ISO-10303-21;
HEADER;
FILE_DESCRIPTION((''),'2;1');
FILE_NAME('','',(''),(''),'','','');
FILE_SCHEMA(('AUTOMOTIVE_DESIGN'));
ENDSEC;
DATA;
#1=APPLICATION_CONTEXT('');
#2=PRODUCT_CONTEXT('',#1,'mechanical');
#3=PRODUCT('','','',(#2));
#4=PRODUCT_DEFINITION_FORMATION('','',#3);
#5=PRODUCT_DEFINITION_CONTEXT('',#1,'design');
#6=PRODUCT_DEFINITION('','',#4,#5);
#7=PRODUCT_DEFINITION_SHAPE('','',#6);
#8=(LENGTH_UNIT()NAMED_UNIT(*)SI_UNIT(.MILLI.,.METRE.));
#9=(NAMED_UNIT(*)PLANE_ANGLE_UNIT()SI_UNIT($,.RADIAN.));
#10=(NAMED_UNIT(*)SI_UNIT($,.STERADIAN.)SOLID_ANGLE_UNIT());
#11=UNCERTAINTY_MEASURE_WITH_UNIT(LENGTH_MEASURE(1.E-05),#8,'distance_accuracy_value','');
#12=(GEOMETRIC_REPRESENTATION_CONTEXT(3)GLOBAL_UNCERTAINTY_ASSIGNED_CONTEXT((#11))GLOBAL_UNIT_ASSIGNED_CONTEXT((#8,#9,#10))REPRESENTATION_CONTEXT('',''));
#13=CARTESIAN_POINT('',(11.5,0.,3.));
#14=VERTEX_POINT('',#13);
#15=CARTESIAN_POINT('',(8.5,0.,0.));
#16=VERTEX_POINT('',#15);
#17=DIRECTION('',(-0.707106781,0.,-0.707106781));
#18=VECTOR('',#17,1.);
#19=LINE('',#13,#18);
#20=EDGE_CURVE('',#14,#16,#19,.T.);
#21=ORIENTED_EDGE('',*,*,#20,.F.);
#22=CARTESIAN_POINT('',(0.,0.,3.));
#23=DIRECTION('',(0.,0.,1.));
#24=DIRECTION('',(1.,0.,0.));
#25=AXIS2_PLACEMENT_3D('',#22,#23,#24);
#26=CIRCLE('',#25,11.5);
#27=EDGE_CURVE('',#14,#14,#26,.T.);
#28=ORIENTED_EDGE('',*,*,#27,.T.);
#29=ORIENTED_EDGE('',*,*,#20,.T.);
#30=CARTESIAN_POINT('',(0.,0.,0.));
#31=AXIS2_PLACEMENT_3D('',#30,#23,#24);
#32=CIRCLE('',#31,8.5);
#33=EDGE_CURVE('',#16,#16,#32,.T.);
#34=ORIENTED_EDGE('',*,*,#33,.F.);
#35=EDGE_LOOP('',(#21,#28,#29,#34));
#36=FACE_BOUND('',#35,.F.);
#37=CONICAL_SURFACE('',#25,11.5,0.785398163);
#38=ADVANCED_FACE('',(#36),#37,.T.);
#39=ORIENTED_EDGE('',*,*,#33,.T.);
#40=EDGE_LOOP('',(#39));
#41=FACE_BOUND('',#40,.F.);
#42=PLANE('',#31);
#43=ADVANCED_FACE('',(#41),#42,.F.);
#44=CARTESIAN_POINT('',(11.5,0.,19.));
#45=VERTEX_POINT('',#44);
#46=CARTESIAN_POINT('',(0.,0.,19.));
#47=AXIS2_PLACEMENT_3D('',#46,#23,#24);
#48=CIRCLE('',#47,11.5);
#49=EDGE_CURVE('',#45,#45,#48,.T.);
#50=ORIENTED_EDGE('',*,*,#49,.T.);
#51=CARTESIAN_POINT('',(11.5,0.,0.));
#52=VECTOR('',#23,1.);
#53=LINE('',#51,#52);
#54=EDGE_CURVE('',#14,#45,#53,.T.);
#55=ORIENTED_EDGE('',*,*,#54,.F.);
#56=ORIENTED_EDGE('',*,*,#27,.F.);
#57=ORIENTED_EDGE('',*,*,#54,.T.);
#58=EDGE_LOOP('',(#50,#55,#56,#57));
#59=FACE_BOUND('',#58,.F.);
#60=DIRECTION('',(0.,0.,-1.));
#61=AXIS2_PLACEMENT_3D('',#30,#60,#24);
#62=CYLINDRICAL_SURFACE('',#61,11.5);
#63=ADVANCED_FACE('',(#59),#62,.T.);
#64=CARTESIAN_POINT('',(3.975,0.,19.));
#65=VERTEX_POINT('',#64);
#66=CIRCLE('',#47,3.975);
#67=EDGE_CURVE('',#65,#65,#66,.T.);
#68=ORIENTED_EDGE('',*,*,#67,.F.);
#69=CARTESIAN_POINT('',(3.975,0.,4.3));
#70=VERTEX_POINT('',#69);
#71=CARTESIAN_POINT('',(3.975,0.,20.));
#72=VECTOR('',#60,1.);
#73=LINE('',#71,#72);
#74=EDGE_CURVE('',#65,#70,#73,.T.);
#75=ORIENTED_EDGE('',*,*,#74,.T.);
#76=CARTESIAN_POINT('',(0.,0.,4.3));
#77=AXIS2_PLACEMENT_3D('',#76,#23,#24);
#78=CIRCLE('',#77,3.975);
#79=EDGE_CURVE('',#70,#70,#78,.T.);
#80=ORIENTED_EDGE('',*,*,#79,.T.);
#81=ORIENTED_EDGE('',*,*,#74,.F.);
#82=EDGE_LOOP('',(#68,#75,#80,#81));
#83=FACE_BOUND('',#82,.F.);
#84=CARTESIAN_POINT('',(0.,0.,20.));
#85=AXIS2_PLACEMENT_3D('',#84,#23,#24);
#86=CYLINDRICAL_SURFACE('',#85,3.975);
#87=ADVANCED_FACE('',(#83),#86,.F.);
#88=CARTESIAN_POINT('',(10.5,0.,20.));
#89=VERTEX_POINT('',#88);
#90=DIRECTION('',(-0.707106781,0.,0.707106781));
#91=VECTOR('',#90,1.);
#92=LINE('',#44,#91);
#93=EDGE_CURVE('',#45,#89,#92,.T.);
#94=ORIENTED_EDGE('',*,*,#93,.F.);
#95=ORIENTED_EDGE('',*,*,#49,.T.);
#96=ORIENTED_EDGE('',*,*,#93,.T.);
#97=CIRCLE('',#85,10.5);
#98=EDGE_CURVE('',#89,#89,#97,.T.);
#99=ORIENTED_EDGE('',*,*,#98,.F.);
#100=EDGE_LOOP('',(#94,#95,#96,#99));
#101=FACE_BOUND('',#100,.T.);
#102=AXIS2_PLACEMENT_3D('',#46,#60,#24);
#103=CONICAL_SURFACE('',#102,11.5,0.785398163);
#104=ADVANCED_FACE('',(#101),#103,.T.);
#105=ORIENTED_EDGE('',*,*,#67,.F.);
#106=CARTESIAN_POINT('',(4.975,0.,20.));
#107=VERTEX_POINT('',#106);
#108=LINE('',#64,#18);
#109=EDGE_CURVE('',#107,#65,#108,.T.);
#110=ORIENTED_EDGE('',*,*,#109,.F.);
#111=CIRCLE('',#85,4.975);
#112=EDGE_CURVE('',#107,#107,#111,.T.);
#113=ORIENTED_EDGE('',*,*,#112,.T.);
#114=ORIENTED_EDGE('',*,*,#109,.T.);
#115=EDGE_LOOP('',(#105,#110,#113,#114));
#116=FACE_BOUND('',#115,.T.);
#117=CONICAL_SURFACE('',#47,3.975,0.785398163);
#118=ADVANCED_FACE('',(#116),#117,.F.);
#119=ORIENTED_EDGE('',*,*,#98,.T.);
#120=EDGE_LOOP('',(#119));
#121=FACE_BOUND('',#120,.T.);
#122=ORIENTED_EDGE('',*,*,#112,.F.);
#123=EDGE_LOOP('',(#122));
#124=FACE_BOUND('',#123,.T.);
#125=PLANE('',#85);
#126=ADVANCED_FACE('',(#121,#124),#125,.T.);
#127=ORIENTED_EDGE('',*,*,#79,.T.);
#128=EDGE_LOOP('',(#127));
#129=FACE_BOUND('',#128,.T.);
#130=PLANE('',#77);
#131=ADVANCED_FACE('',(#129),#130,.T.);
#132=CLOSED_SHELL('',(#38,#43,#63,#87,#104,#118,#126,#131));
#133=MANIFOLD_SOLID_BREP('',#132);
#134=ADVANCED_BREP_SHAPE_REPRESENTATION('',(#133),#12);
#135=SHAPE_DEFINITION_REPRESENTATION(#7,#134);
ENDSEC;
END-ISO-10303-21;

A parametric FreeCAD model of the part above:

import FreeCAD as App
import Part
import Sketcher
Q = App.Units.Quantity


def edges_at(feature, points):
    """Names of the edges that pass closest to the given points."""
    edges = feature.Shape.Edges
    near = lambda p: min(range(len(edges)), key=lambda i: edges[i].distToShape(Part.Vertex(*p))[0])
    return sorted({f"Edge{near(p) + 1}" for p in points})

doc = App.newDocument("Part")
body = doc.addObject("PartDesign::Body", "Body")

sketch1 = body.newObject("Sketcher::SketchObject", "Sketch")
sketch1.AttachmentSupport = (doc.getObject("XY_Plane"), [""])
sketch1.MapMode = "FlatFace"
sketch1.addGeometry(Part.Circle(App.Vector(0, 0, 0), App.Vector(0, 0, 1), 11.5), False)
sketch1.addConstraint([
    Sketcher.Constraint("Coincident", 0, 3, -1, 1),
    Sketcher.Constraint("Diameter", 0, Q("23 mm")),
])
pad1 = body.newObject("PartDesign::Pad", "Pad")
pad1.Profile = sketch1
pad1.Length = 20

sketch2 = body.newObject("Sketcher::SketchObject", "Sketch001")
sketch2.AttachmentSupport = (doc.getObject("XY_Plane"), [""])
sketch2.MapMode = "FlatFace"
sketch2.AttachmentOffset = App.Placement(App.Vector(0, 0, 20), App.Rotation())
sketch2.addGeometry(Part.Circle(App.Vector(0, 0, 0), App.Vector(0, 0, 1), 3.975), False)
sketch2.addConstraint([
    Sketcher.Constraint("Coincident", 0, 3, -1, 1),
    Sketcher.Constraint("Diameter", 0, Q("7.95 mm")),
])
pocket1 = body.newObject("PartDesign::Pocket", "Pocket")
pocket1.Profile = sketch2
pocket1.Length = 15.7
doc.recompute()

chamfer = body.newObject("PartDesign::Chamfer", "Chamfer")
chamfer.Base = (pocket1, edges_at(pocket1, [(-11.5, 0, 0)]))
chamfer.Size = 3
doc.recompute()

chamfer2 = body.newObject("PartDesign::Chamfer", "Chamfer001")
chamfer2.Base = (chamfer, edges_at(chamfer, [(-11.5, 0, 20), (-3.975, 0, 20)]))
chamfer2.Size = 1

doc.recompute()
